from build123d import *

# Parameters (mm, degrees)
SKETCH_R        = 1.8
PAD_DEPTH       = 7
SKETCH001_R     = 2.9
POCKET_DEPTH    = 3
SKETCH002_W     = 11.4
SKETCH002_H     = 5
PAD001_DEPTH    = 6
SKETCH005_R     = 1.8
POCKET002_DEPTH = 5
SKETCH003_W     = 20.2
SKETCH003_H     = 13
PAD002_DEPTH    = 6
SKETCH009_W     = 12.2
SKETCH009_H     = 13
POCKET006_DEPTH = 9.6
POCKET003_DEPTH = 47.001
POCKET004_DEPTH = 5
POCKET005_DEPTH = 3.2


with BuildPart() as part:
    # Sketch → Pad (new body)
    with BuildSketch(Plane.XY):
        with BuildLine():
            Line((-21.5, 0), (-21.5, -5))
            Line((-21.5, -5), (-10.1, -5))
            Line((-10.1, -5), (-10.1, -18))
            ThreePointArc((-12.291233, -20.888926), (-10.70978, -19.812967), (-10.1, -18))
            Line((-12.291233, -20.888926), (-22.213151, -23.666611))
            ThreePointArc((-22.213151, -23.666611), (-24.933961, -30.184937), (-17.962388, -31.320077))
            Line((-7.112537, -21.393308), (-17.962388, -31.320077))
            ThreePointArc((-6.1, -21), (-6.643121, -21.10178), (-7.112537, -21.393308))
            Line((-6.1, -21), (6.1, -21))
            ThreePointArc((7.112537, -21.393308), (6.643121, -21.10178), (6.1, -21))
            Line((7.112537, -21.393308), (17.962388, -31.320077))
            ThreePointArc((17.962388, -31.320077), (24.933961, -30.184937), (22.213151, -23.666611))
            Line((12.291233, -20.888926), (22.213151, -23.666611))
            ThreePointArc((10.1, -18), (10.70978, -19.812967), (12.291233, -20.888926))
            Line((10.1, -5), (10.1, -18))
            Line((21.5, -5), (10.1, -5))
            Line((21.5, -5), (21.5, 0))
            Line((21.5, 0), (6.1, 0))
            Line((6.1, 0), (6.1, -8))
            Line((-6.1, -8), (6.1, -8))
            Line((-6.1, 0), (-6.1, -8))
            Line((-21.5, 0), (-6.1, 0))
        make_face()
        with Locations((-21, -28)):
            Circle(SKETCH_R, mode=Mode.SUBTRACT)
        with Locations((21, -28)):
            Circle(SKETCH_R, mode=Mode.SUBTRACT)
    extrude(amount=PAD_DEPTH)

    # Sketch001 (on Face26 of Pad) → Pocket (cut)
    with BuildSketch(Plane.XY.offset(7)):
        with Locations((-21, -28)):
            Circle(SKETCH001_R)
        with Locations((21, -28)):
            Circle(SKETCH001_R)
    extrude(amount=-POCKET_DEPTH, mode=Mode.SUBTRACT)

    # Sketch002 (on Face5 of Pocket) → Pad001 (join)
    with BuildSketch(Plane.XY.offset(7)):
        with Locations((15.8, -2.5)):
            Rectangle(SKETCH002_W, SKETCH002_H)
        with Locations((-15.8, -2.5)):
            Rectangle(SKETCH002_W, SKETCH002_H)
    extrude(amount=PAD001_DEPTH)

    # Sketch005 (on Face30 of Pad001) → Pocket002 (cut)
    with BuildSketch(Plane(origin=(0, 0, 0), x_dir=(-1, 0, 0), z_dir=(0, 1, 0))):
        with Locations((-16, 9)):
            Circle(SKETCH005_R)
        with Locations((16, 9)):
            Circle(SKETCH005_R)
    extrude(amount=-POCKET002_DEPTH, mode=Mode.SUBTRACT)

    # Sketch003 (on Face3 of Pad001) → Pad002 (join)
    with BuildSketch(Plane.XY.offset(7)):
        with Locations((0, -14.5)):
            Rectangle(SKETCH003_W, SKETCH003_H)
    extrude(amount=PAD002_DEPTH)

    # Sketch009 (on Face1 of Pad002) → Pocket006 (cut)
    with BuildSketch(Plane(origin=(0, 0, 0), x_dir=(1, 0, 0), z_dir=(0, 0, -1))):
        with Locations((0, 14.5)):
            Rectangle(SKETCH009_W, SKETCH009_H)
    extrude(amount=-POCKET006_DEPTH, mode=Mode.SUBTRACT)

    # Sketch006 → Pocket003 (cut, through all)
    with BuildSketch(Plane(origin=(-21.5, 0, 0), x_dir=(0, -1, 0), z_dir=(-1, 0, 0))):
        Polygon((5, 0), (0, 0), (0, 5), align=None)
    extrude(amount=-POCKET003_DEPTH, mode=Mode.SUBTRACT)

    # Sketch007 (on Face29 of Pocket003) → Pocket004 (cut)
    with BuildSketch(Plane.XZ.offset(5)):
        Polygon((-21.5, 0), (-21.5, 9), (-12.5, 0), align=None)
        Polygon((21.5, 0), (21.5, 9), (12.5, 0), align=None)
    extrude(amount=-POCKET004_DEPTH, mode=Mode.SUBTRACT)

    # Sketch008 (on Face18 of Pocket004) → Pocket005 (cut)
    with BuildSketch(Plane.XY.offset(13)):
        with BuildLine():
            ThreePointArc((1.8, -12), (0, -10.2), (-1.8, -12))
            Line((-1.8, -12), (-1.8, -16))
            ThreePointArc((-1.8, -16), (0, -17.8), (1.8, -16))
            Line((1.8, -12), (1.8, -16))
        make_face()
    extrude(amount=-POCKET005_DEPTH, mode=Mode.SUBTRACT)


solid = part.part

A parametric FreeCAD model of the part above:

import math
import FreeCAD as App
import Part
import Sketcher


def add_polygon(sketch, points):
    """Adds a closed chain of lines whose ends are joined by coincident constraints."""
    first, n = sketch.GeometryCount, len(points)
    for a, b in zip(points, points[1:] + points[:1]):
        sketch.addGeometry(Part.LineSegment(App.Vector(*a, 0), App.Vector(*b, 0)), False)
    for i in range(n):
        sketch.addConstraint(Sketcher.Constraint("Coincident", first + i, 2, first + (i + 1) % n, 1))

doc = App.newDocument("Part")
body = doc.addObject("PartDesign::Body", "Body")

# Sketch on XY plane
sketch1 = doc.addObject("Sketcher::SketchObject", "Sketch")
body.addObject(sketch1)
sketch1.AttachmentSupport = (doc.XY_Plane, [""])
sketch1.MapMode = "FlatFace"
sketch1.addGeometry(Part.LineSegment(App.Vector(-21.5, 0, 0), App.Vector(-21.5, -5, 0)), False)
sketch1.addGeometry(Part.LineSegment(App.Vector(-21.5, -5, 0), App.Vector(-10.1, -5, 0)), False)
sketch1.addGeometry(Part.LineSegment(App.Vector(-10.1, -5, 0), App.Vector(-10.1, -18, 0)), False)
sketch1.addGeometry(Part.ArcOfCircle(Part.Circle(App.Vector(-13.099998, -18.000001, 0), App.Vector(0, 0, 1), 2.999998), math.radians(-74.360213), math.radians(0.000016)), False)
sketch1.addGeometry(Part.LineSegment(App.Vector(-12.291233, -20.888926, 0), App.Vector(-22.213151, -23.666611, 0)), False)
sketch1.addGeometry(Part.ArcOfCircle(Part.Circle(App.Vector(-21, -28, 0), App.Vector(0, 0, 1), 4.5), math.radians(105.639818), math.radians(312.456088)), False)
sketch1.addGeometry(Part.LineSegment(App.Vector(-17.962388, -31.320077, 0), App.Vector(-7.112537, -21.393308, 0)), False)
sketch1.addGeometry(Part.ArcOfCircle(Part.Circle(App.Vector(-6.1, -22.499998, 0), App.Vector(0, 0, 1), 1.499998), math.radians(89.999999), math.radians(132.45614)), False)
sketch1.addGeometry(Part.LineSegment(App.Vector(-6.1, -21, 0), App.Vector(6.1, -21, 0)), False)
sketch1.addGeometry(Part.ArcOfCircle(Part.Circle(App.Vector(6.1, -22.499998, 0), App.Vector(0, 0, 1), 1.499998), math.radians(47.54386), math.radians(90.000001)), False)
sketch1.addGeometry(Part.LineSegment(App.Vector(7.112537, -21.393308, 0), App.Vector(17.962388, -31.320077, 0)), False)
sketch1.addGeometry(Part.ArcOfCircle(Part.Circle(App.Vector(21, -28, 0), App.Vector(0, 0, 1), 4.5), math.radians(-132.456088), math.radians(74.360182)), False)
sketch1.addGeometry(Part.LineSegment(App.Vector(22.213151, -23.666611, 0), App.Vector(12.291233, -20.888926, 0)), False)
sketch1.addGeometry(Part.ArcOfCircle(Part.Circle(App.Vector(13.099998, -18.000001, 0), App.Vector(0, 0, 1), 2.999998), math.radians(179.999984), math.radians(254.360213)), False)
sketch1.addGeometry(Part.LineSegment(App.Vector(10.1, -18, 0), App.Vector(10.1, -5, 0)), False)
sketch1.addGeometry(Part.LineSegment(App.Vector(10.1, -5, 0), App.Vector(21.5, -5, 0)), False)
sketch1.addGeometry(Part.LineSegment(App.Vector(21.5, -5, 0), App.Vector(21.5, 0, 0)), False)
sketch1.addGeometry(Part.LineSegment(App.Vector(21.5, 0, 0), App.Vector(6.1, 0, 0)), False)
sketch1.addGeometry(Part.LineSegment(App.Vector(6.1, 0, 0), App.Vector(6.1, -8, 0)), False)
sketch1.addGeometry(Part.LineSegment(App.Vector(6.1, -8, 0), App.Vector(-6.1, -8, 0)), False)
sketch1.addGeometry(Part.LineSegment(App.Vector(-6.1, -8, 0), App.Vector(-6.1, 0, 0)), False)
sketch1.addGeometry(Part.LineSegment(App.Vector(-6.1, 0, 0), App.Vector(-21.5, 0, 0)), False)
sketch1.addGeometry(Part.Circle(App.Vector(-21, -28, 0), App.Vector(0, 0, 1), 1.8), False)
sketch1.addGeometry(Part.Circle(App.Vector(21, -28, 0), App.Vector(0, 0, 1), 1.8), False)
sketch1.addConstraint(Sketcher.Constraint("Coincident", 0, 2, 1, 1))
sketch1.addConstraint(Sketcher.Constraint("Coincident", 1, 2, 2, 1))
sketch1.addConstraint(Sketcher.Constraint("Tangent", 2, 2, 3, 2))
sketch1.addConstraint(Sketcher.Constraint("Tangent", 3, 1, 4, 1))
sketch1.addConstraint(Sketcher.Constraint("Tangent", 4, 2, 5, 1))
sketch1.addConstraint(Sketcher.Constraint("Tangent", 5, 2, 6, 1))
sketch1.addConstraint(Sketcher.Constraint("Tangent", 6, 2, 7, 2))
sketch1.addConstraint(Sketcher.Constraint("Tangent", 7, 1, 8, 1))
sketch1.addConstraint(Sketcher.Constraint("Tangent", 8, 2, 9, 2))
sketch1.addConstraint(Sketcher.Constraint("Tangent", 9, 1, 10, 1))
sketch1.addConstraint(Sketcher.Constraint("Tangent", 10, 2, 11, 1))
sketch1.addConstraint(Sketcher.Constraint("Tangent", 11, 2, 12, 1))
sketch1.addConstraint(Sketcher.Constraint("Tangent", 12, 2, 13, 2))
sketch1.addConstraint(Sketcher.Constraint("Tangent", 13, 1, 14, 1))
sketch1.addConstraint(Sketcher.Constraint("Coincident", 14, 2, 15, 1))
sketch1.addConstraint(Sketcher.Constraint("Coincident", 15, 2, 16, 1))
sketch1.addConstraint(Sketcher.Constraint("Coincident", 16, 2, 17, 1))
sketch1.addConstraint(Sketcher.Constraint("Coincident", 17, 2, 18, 1))
sketch1.addConstraint(Sketcher.Constraint("Coincident", 18, 2, 19, 1))
sketch1.addConstraint(Sketcher.Constraint("Coincident", 19, 2, 20, 1))
sketch1.addConstraint(Sketcher.Constraint("Coincident", 20, 2, 21, 1))
sketch1.addConstraint(Sketcher.Constraint("Coincident", 21, 2, 0, 1))
sketch1.addConstraint(Sketcher.Constraint("Vertical", 0))
sketch1.addConstraint(Sketcher.Constraint("Horizontal", 1))
sketch1.addConstraint(Sketcher.Constraint("Vertical", 2))
sketch1.addConstraint(Sketcher.Constraint("Horizontal", 8))
sketch1.addConstraint(Sketcher.Constraint("Vertical", 14))
sketch1.addConstraint(Sketcher.Constraint("Horizontal", 15))
sketch1.addConstraint(Sketcher.Constraint("Vertical", 16))
sketch1.addConstraint(Sketcher.Constraint("Horizontal", 17))
sketch1.addConstraint(Sketcher.Constraint("Vertical", 18))
sketch1.addConstraint(Sketcher.Constraint("Horizontal", 19))
sketch1.addConstraint(Sketcher.Constraint("Vertical", 20))
sketch1.addConstraint(Sketcher.Constraint("Horizontal", 21))
sketch1.addConstraint(Sketcher.Constraint("Coincident", 22, 3, 5, 3))
sketch1.addConstraint(Sketcher.Constraint("Coincident", 23, 3, 11, 3))
sketch1.addConstraint(Sketcher.Constraint("Equal", 7, 9))
sketch1.addConstraint(Sketcher.Constraint("Equal", 5, 11))
sketch1.addConstraint(Sketcher.Constraint("Equal", 3, 13))
sketch1.addConstraint(Sketcher.Constraint("Equal", 22, 23))
sketch1.addConstraint(Sketcher.Constraint("Symmetric", 17, 2, 20, 2, -1, 1))
sketch1.addConstraint(Sketcher.Constraint("Symmetric", 5, 3, 11, 3, -2))
sketch1.addConstraint(Sketcher.Constraint("Symmetric", 3, 3, 13, 3, -2))
sketch1.addConstraint(Sketcher.Constraint("Symmetric", 0, 2, 15, 2, -2))
sketch1.addConstraint(Sketcher.Constraint("PointOnObject", 16, 2, -1))
sketch1.addConstraint(Sketcher.Constraint("Horizontal", 6, 2, 9, 1))
sketch1.addConstraint(Sketcher.Constraint("Vertical", 8, 2, 17, 2))
sketch1.addConstraint(Sketcher.Constraint("Radius", 3, 2.999998))
sketch1.addConstraint(Sketcher.Constraint("Diameter", 22, 3.6))
sketch1.addConstraint(Sketcher.Constraint("Radius", 5, 4.5))
sketch1.addConstraint(Sketcher.Constraint("DistanceY", 0, 2, 0, 1, 5.0))
sketch1.addConstraint(Sketcher.Constraint("DistanceY", 2, 2, 2, 1, 13.0))
sketch1.addConstraint(Sketcher.Constraint("DistanceY", 18, 2, 18, 1, 8.0))
sketch1.addConstraint(Sketcher.Constraint("DistanceX", 1, 1, 1, 2, 11.4))
sketch1.addConstraint(Sketcher.Constraint("DistanceX", 8, 1, 8, 2, 12.2))
sketch1.addConstraint(Sketcher.Constraint("DistanceX", 17, 2, 17, 1, 15.4))
sketch1.addConstraint(Sketcher.Constraint("DistanceX", 5, 3, -1, 1, 21.0))
sketch1.addConstraint(Sketcher.Constraint("DistanceY", 5, 3, -1, 1, 28.0))
sketch1.addConstraint(Sketcher.Constraint("DistanceY", 7, 1, -1, 1, 21.0))
sketch1.addConstraint(Sketcher.Constraint("Radius", 7, 1.499998))
pad1 = doc.addObject("PartDesign::Pad", "Pad")
body.addObject(pad1)
pad1.Profile = sketch1
pad1.Length = 7

# Sketch on XY plane
sketch2 = doc.addObject("Sketcher::SketchObject", "Sketch001")
body.addObject(sketch2)
sketch2.AttachmentSupport = (doc.XY_Plane, [""])
sketch2.MapMode = "FlatFace"
sketch2.AttachmentOffset = App.Placement(App.Vector(0, 0, 7), App.Rotation())
sketch2.addGeometry(Part.Circle(App.Vector(-21, -28, 0), App.Vector(0, 0, 1), 2.9), False)
sketch2.addGeometry(Part.Circle(App.Vector(21, -28, 0), App.Vector(0, 0, 1), 2.9), False)
sketch2.addConstraint(Sketcher.Constraint("Equal", 0, 1))
sketch2.addConstraint(Sketcher.Constraint("Symmetric", 0, 3, 1, 3, -2))
sketch2.addConstraint(Sketcher.Constraint("Diameter", 0, 5.8))
sketch2.addConstraint(Sketcher.Constraint("DistanceX", 0, 3, -1, 1, 21.0))
sketch2.addConstraint(Sketcher.Constraint("DistanceY", 0, 3, -1, 1, 28.0))
pocket1 = doc.addObject("PartDesign::Pocket", "Pocket")
body.addObject(pocket1)
pocket1.Profile = sketch2
pocket1.Length = 3

# Sketch on XY plane
sketch3 = doc.addObject("Sketcher::SketchObject", "Sketch002")
body.addObject(sketch3)
sketch3.AttachmentSupport = (doc.XY_Plane, [""])
sketch3.MapMode = "FlatFace"
sketch3.AttachmentOffset = App.Placement(App.Vector(0, 0, 7), App.Rotation())
add_polygon(sketch3, [(10.1, 0), (10.1, -5), (21.5, -5), (21.5, 0)])  # lines 0-3
add_polygon(sketch3, [(-21.5, 0), (-21.5, -5), (-10.1, -5), (-10.1, 0)])  # lines 4-7
sketch3.addConstraint(Sketcher.Constraint("Vertical", 0))
sketch3.addConstraint(Sketcher.Constraint("Horizontal", 1))
sketch3.addConstraint(Sketcher.Constraint("Vertical", 2))
sketch3.addConstraint(Sketcher.Constraint("Horizontal", 3))
sketch3.addConstraint(Sketcher.Constraint("Vertical", 4))
sketch3.addConstraint(Sketcher.Constraint("Horizontal", 5))
sketch3.addConstraint(Sketcher.Constraint("Vertical", 6))
sketch3.addConstraint(Sketcher.Constraint("Horizontal", 7))
sketch3.addConstraint(Sketcher.Constraint("Symmetric", 3, 2, 6, 2, -1, 1))
sketch3.addConstraint(Sketcher.Constraint("Symmetric", 1, 2, 4, 2, -2))
sketch3.addConstraint(Sketcher.Constraint("PointOnObject", 2, 2, -1))
sketch3.addConstraint(Sketcher.Constraint("DistanceY", 0, 2, 0, 1, 5.0))
sketch3.addConstraint(Sketcher.Constraint("DistanceX", 1, 1, 1, 2, 11.4))
sketch3.addConstraint(Sketcher.Constraint("DistanceX", 4, 2, 1, 2, 43.0))
pad2 = doc.addObject("PartDesign::Pad", "Pad001")
body.addObject(pad2)
pad2.Profile = sketch3
pad2.Length = 6

# Sketch on XZ plane
sketch4 = doc.addObject("Sketcher::SketchObject", "Sketch003")
body.addObject(sketch4)
sketch4.AttachmentSupport = (doc.XZ_Plane, [""])
sketch4.MapMode = "FlatFace"
sketch4.addGeometry(Part.Circle(App.Vector(16, 9, 0), App.Vector(0, 0, 1), 1.8), False)
sketch4.addGeometry(Part.Circle(App.Vector(-16, 9, 0), App.Vector(0, 0, 1), 1.8), False)
sketch4.addConstraint(Sketcher.Constraint("Equal", 0, 1))
sketch4.addConstraint(Sketcher.Constraint("Symmetric", 0, 3, 1, 3, -2))
sketch4.addConstraint(Sketcher.Constraint("Diameter", 0, 3.6))
sketch4.addConstraint(Sketcher.Constraint("DistanceX", -1, 1, 0, 3, 16.0))
sketch4.addConstraint(Sketcher.Constraint("DistanceY", -1, 1, 0, 3, 9.0))
pocket2 = doc.addObject("PartDesign::Pocket", "Pocket001")
body.addObject(pocket2)
pocket2.Profile = sketch4
pocket2.Length = 5
pocket2.Reversed = True

# Sketch on XY plane
sketch5 = doc.addObject("Sketcher::SketchObject", "Sketch004")
body.addObject(sketch5)
sketch5.AttachmentSupport = (doc.XY_Plane, [""])
sketch5.MapMode = "FlatFace"
sketch5.AttachmentOffset = App.Placement(App.Vector(0, 0, 7), App.Rotation())
add_polygon(sketch5, [(-10.1, -8), (-10.1, -21), (10.1, -21), (10.1, -8)])  # lines 0-3
sketch5.addConstraint(Sketcher.Constraint("Vertical", 0))
sketch5.addConstraint(Sketcher.Constraint("Horizontal", 1))
sketch5.addConstraint(Sketcher.Constraint("Vertical", 2))
sketch5.addConstraint(Sketcher.Constraint("Horizontal", 3))
sketch5.addConstraint(Sketcher.Constraint("DistanceY", 0, 2, 0, 1, 13.0))
sketch5.addConstraint(Sketcher.Constraint("DistanceX", 1, 1, 1, 2, 20.2))
sketch5.addConstraint(Sketcher.Constraint("DistanceY", 0, 2, -1, 1, 21.0))
sketch5.addConstraint(Sketcher.Constraint("DistanceX", 0, 2, -1, 1, 10.1))
pad3 = doc.addObject("PartDesign::Pad", "Pad002")
body.addObject(pad3)
pad3.Profile = sketch5
pad3.Length = 6

# Sketch on XY plane
sketch6 = doc.addObject("Sketcher::SketchObject", "Sketch005")
body.addObject(sketch6)
sketch6.AttachmentSupport = (doc.XY_Plane, [""])
sketch6.MapMode = "FlatFace"
add_polygon(sketch6, [(-6.1, -21), (-6.1, -8), (6.1, -8), (6.1, -21)])  # lines 0-3
sketch6.addConstraint(Sketcher.Constraint("Vertical", 0))
sketch6.addConstraint(Sketcher.Constraint("Horizontal", 1))
sketch6.addConstraint(Sketcher.Constraint("Vertical", 2))
sketch6.addConstraint(Sketcher.Constraint("Horizontal", 3))
sketch6.addConstraint(Sketcher.Constraint("DistanceY", 0, 1, 0, 2, 13.0))
sketch6.addConstraint(Sketcher.Constraint("DistanceX", 1, 1, 1, 2, 12.2))
sketch6.addConstraint(Sketcher.Constraint("DistanceY", 0, 2, -1, 1, 8.0))
sketch6.addConstraint(Sketcher.Constraint("DistanceX", 0, 2, -1, 1, 6.1))
pocket3 = doc.addObject("PartDesign::Pocket", "Pocket002")
body.addObject(pocket3)
pocket3.Profile = sketch6
pocket3.Length = 9.6
pocket3.Reversed = True

# Sketch on YZ plane
sketch7 = doc.addObject("Sketcher::SketchObject", "Sketch006")
body.addObject(sketch7)
sketch7.AttachmentSupport = (doc.YZ_Plane, [""])
sketch7.MapMode = "FlatFace"
sketch7.AttachmentOffset = App.Placement(App.Vector(0, 0, -21.5), App.Rotation())
add_polygon(sketch7, [(0, 0), (-5, 0), (0, 5)])  # lines 0-2
sketch7.addConstraint(Sketcher.Constraint("Horizontal", 0))
sketch7.addConstraint(Sketcher.Constraint("Vertical", 2))
sketch7.addConstraint(Sketcher.Constraint("Coincident", 2, 2, -1, 1))
sketch7.addConstraint(Sketcher.Constraint("Equal", 0, 2))
sketch7.addConstraint(Sketcher.Constraint("DistanceX", 0, 2, 0, 1, 5.0))
pocket4 = doc.addObject("PartDesign::Pocket", "Pocket003")
body.addObject(pocket4)
pocket4.Profile = sketch7
pocket4.Type = "ThroughAll"
pocket4.Reversed = True

# Sketch on XZ plane
sketch8 = doc.addObject("Sketcher::SketchObject", "Sketch007")
body.addObject(sketch8)
sketch8.AttachmentSupport = (doc.XZ_Plane, [""])
sketch8.MapMode = "FlatFace"
sketch8.AttachmentOffset = App.Placement(App.Vector(0, 0, 5), App.Rotation())
add_polygon(sketch8, [(-21.5, 9), (-21.5, 0), (-12.5, 0)])  # lines 0-2
add_polygon(sketch8, [(21.5, 0), (21.5, 9), (12.5, 0)])  # lines 3-5
sketch8.addConstraint(Sketcher.Constraint("Vertical", 0))
sketch8.addConstraint(Sketcher.Constraint("Horizontal", 1))
sketch8.addConstraint(Sketcher.Constraint("Vertical", 3))
sketch8.addConstraint(Sketcher.Constraint("Horizontal", 5))
sketch8.addConstraint(Sketcher.Constraint("Symmetric", 1, 2, 4, 2, -1, 1))
sketch8.addConstraint(Sketcher.Constraint("Symmetric", 2, 2, 3, 2, -2))
sketch8.addConstraint(Sketcher.Constraint("PointOnObject", 0, 2, -1))
sketch8.addConstraint(Sketcher.Constraint("Perpendicular", 2, 4))
sketch8.addConstraint(Sketcher.Constraint("DistanceX", 1, 1, 1, 2, 9.0))
sketch8.addConstraint(Sketcher.Constraint("DistanceX", 1, 2, 3, 2, 34.0))
pocket5 = doc.addObject("PartDesign::Pocket", "Pocket004")
body.addObject(pocket5)
pocket5.Profile = sketch8
pocket5.Length = 5

# Sketch on XY plane
sketch9 = doc.addObject("Sketcher::SketchObject", "Sketch008")
body.addObject(sketch9)
sketch9.AttachmentSupport = (doc.XY_Plane, [""])
sketch9.MapMode = "FlatFace"
sketch9.AttachmentOffset = App.Placement(App.Vector(0, 0, 13), App.Rotation())
sketch9.addGeometry(Part.ArcOfCircle(Part.Circle(App.Vector(0, -12, 0), App.Vector(0, 0, 1), 1.8), math.radians(0), math.radians(180)), False)
sketch9.addGeometry(Part.LineSegment(App.Vector(-1.8, -12, 0), App.Vector(-1.8, -16, 0)), False)
sketch9.addGeometry(Part.ArcOfCircle(Part.Circle(App.Vector(0, -16, 0), App.Vector(0, 0, 1), 1.8), math.radians(180), math.radians(360)), False)
sketch9.addGeometry(Part.LineSegment(App.Vector(1.8, -16, 0), App.Vector(1.8, -12, 0)), False)
sketch9.addConstraint(Sketcher.Constraint("Tangent", 0, 2, 1, 1))
sketch9.addConstraint(Sketcher.Constraint("Tangent", 1, 2, 2, 1))
sketch9.addConstraint(Sketcher.Constraint("Tangent", 2, 2, 3, 1))
sketch9.addConstraint(Sketcher.Constraint("Tangent", 3, 2, 0, 1))
sketch9.addConstraint(Sketcher.Constraint("Vertical", 1))
sketch9.addConstraint(Sketcher.Constraint("Vertical", 3))
sketch9.addConstraint(Sketcher.Constraint("PointOnObject", 0, 3, -2))
sketch9.addConstraint(Sketcher.Constraint("Radius", 0, 1.8))
sketch9.addConstraint(Sketcher.Constraint("DistanceY", 1, 2, 1, 1, 4.0))
sketch9.addConstraint(Sketcher.Constraint("DistanceY", 0, 3, -1, 1, 12.0))
pocket6 = doc.addObject("PartDesign::Pocket", "Pocket005")
body.addObject(pocket6)
pocket6.Profile = sketch9
pocket6.Length = 3.2

doc.recompute()
